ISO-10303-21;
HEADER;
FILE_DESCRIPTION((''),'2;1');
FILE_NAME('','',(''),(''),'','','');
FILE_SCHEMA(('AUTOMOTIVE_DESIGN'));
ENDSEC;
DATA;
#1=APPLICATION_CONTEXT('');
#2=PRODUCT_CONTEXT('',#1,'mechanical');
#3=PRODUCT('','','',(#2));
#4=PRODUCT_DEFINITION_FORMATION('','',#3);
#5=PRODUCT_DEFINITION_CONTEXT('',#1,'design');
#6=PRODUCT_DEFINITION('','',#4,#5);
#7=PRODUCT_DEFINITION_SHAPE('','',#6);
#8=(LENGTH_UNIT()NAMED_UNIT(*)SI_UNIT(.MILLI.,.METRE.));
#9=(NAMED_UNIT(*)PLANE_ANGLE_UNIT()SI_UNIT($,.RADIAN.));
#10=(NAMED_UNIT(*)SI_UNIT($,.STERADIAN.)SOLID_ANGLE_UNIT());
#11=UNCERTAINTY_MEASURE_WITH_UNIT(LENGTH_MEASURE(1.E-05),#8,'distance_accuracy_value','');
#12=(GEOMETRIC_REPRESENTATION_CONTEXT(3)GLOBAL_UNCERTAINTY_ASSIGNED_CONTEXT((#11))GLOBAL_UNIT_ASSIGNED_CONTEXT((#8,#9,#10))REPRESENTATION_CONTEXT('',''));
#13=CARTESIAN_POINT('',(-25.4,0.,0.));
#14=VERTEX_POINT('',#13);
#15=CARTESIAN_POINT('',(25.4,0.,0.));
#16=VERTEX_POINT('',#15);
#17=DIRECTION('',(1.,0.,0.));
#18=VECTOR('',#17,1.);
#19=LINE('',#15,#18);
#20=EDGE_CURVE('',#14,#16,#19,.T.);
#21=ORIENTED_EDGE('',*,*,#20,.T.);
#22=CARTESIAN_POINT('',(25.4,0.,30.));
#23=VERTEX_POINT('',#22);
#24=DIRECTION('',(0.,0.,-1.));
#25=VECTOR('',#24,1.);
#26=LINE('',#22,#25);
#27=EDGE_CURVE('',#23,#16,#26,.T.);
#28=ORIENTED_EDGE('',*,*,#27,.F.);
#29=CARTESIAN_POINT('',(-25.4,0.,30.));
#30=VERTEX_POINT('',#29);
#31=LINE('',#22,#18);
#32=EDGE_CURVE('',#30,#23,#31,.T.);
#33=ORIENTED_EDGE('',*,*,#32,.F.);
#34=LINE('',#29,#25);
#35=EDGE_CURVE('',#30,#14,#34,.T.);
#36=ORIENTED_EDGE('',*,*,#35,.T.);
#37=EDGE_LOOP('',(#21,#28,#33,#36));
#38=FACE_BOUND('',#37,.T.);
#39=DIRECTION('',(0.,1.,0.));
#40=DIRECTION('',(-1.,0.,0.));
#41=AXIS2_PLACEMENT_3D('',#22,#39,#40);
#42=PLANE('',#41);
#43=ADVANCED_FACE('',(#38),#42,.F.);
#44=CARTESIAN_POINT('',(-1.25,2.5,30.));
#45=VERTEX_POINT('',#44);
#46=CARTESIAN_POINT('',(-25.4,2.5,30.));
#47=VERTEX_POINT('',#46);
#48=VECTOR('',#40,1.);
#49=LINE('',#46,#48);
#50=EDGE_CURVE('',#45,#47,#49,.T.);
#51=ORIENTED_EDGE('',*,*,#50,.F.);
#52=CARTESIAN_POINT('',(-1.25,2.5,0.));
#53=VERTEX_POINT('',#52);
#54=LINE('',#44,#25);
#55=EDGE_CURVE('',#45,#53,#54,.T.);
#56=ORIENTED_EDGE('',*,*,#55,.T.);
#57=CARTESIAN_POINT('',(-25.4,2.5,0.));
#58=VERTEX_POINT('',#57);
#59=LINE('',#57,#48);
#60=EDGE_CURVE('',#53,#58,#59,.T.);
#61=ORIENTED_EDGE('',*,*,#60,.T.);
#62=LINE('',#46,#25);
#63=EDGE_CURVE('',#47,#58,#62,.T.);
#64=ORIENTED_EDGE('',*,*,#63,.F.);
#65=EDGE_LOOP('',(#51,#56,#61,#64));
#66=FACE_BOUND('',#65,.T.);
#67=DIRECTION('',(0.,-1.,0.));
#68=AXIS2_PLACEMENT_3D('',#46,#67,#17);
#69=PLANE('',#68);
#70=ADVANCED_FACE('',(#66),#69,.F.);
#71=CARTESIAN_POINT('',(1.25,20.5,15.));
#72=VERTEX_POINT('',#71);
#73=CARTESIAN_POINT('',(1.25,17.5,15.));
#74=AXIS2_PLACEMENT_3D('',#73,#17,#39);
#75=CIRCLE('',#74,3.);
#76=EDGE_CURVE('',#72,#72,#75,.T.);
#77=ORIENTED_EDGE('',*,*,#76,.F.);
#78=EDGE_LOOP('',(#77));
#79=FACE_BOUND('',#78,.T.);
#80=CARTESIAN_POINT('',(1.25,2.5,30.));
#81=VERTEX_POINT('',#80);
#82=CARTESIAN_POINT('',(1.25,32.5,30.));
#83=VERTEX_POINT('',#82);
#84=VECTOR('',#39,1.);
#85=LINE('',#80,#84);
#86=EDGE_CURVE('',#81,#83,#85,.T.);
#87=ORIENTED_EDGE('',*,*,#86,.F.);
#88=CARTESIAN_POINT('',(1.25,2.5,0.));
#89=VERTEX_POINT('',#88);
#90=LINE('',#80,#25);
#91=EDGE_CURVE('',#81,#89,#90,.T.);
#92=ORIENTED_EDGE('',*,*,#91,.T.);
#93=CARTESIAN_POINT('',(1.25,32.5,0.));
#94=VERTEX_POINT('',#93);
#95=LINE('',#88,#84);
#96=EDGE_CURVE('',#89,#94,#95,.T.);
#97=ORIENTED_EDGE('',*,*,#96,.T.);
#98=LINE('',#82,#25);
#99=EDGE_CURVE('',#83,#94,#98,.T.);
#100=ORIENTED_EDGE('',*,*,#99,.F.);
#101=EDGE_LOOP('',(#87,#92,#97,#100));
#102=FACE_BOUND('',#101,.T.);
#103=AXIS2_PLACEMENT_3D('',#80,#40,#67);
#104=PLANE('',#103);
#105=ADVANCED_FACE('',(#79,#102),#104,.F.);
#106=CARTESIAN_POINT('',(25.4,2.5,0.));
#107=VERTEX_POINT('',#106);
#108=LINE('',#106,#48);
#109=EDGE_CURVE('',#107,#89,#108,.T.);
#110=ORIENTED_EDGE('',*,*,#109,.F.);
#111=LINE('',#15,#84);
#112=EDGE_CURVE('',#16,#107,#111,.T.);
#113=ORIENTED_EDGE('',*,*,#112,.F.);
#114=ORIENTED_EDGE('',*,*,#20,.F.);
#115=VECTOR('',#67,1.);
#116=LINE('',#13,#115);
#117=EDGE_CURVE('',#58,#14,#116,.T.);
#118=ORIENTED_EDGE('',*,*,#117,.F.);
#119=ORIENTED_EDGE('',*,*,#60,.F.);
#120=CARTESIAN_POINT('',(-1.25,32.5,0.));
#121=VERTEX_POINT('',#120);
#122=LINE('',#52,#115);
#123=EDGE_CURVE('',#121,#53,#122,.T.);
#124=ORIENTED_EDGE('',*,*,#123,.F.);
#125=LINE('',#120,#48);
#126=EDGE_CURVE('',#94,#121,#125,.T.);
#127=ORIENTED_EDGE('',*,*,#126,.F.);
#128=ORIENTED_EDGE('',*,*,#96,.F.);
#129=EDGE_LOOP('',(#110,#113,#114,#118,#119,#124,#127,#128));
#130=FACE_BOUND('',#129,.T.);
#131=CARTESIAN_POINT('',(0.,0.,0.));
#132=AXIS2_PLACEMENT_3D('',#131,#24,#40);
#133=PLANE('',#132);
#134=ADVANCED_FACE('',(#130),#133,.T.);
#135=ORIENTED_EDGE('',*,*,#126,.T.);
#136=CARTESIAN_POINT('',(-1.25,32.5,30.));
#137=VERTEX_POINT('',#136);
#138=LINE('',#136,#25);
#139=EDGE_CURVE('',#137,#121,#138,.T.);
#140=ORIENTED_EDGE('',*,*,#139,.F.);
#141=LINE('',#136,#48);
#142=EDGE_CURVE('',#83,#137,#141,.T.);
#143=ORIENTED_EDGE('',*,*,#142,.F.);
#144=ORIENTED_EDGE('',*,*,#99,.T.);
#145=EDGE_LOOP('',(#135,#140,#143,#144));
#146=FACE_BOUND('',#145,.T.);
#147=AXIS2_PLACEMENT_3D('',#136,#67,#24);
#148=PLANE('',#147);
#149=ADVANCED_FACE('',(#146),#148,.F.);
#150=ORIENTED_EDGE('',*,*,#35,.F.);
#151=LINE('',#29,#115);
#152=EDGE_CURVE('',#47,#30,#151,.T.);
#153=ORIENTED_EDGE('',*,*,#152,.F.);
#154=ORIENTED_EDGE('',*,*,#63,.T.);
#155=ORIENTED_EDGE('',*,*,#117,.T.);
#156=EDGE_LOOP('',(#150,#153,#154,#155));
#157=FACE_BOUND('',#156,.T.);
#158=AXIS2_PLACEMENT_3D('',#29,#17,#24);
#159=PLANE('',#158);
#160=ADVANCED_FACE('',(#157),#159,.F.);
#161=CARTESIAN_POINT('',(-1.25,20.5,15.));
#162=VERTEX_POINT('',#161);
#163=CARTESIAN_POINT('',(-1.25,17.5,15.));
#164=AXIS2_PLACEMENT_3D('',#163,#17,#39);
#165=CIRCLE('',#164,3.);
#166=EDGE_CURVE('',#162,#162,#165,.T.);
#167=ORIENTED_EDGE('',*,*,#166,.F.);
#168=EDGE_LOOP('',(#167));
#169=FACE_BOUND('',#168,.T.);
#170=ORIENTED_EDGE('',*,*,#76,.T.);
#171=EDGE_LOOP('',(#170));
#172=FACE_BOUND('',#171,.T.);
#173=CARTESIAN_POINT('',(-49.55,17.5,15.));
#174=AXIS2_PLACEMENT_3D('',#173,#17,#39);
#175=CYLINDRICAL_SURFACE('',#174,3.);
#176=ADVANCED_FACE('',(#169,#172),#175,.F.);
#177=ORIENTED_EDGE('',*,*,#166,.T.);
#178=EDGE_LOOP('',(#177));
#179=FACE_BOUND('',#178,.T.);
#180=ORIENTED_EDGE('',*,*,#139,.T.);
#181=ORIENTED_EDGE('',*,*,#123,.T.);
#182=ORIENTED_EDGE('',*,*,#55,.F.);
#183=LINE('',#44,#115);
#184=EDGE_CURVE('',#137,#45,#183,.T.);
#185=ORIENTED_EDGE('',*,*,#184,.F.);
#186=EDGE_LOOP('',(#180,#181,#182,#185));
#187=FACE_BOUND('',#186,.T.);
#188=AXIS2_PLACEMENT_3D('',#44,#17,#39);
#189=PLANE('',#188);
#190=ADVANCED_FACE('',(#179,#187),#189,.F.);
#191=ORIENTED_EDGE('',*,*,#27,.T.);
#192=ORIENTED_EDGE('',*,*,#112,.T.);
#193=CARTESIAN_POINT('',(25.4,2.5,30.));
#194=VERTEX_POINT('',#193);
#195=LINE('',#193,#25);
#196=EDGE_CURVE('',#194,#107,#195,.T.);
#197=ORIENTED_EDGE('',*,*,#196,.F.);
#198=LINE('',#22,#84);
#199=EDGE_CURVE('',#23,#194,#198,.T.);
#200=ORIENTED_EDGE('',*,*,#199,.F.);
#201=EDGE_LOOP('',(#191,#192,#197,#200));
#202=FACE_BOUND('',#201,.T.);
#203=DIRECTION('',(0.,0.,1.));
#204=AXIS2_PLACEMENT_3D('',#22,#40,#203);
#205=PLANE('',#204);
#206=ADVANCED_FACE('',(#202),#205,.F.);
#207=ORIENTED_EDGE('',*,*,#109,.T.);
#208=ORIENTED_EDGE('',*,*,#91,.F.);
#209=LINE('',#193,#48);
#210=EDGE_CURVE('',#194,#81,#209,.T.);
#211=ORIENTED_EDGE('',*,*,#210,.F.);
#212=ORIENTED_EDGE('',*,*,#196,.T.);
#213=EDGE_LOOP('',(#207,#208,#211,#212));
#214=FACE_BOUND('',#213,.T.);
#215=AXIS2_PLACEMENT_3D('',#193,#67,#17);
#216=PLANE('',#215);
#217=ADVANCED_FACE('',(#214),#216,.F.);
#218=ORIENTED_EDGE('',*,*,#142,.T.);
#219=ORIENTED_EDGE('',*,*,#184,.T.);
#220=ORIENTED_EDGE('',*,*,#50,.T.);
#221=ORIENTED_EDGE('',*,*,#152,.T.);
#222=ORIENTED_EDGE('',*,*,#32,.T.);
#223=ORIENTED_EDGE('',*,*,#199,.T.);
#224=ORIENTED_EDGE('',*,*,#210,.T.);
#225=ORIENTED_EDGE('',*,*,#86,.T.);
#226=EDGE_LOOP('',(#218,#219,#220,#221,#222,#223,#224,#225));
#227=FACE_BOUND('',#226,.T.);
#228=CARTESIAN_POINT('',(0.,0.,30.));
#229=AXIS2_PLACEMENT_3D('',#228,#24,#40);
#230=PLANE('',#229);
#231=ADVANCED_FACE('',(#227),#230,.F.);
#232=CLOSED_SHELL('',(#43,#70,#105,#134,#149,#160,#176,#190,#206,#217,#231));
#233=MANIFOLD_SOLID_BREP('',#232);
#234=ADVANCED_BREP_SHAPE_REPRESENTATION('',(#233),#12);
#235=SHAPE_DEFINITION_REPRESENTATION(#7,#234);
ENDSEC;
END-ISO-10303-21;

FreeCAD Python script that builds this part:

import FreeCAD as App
import Part
import Sketcher

V = App.Vector
Q = App.Units.Quantity


def add_polygon(sketch, points):
    """Adds a closed chain of lines whose ends are joined by coincident constraints."""
    first, n = sketch.GeometryCount, len(points)
    for a, b in zip(points, points[1:] + points[:1]):
        sketch.addGeometry(Part.LineSegment(App.Vector(*a, 0), App.Vector(*b, 0)), False)
    for i in range(n):
        sketch.addConstraint(Sketcher.Constraint("Coincident", first + i, 2, first + (i + 1) % n, 1))

doc = App.newDocument("Part")
body = doc.addObject("PartDesign::Body", "Body")

# Sketch on XY plane
sketch1 = doc.addObject("Sketcher::SketchObject", "Sketch")
body.addObject(sketch1)
sketch1.AttachmentSupport = (doc.XY_Plane, [""])
sketch1.MapMode = "FlatFace"
add_polygon(sketch1, [(-25.4, 0), (25.4, 0), (25.4, 2.5), (1.2, 2.5), (1.2, 32.5), (-1.2, 32.5), (-1.2, 2.5), (-25.4, 2.5)])  # lines 0-7
sketch1.addConstraint([
    Sketcher.Constraint("Horizontal", 0),
    Sketcher.Constraint("Vertical", 1),
    Sketcher.Constraint("Horizontal", 2),
    Sketcher.Constraint("Vertical", 3),
    Sketcher.Constraint("Horizontal", 4),
    Sketcher.Constraint("Vertical", 5),
    Sketcher.Constraint("Horizontal", 6),
    Sketcher.Constraint("Vertical", 7),
    Sketcher.Constraint("Symmetric", 0, 2, 7, 2, -1, 1),
    Sketcher.Constraint("Symmetric", 2, 2, 5, 2, -2),
    Sketcher.Constraint("Equal", 4, 1),
    Sketcher.Constraint("DistanceY", 3, 1, 3, 2, Q("30 mm")),
    Sketcher.Constraint("DistanceX", 0, 1, 0, 2, Q("50.8 mm")),
    Sketcher.Constraint("DistanceX", 4, 2, 4, 1, Q("2.5 mm")),
])
pad1 = doc.addObject("PartDesign::Pad", "Pad")
body.addObject(pad1)
pad1.Profile = sketch1
pad1.Length = 30

# Sketch on YZ plane
sketch2 = doc.addObject("Sketcher::SketchObject", "Sketch001")
body.addObject(sketch2)
sketch2.AttachmentSupport = (doc.YZ_Plane, [""])
sketch2.MapMode = "FlatFace"
sketch2.AttachmentOffset = App.Placement(V(0, 0, 1.25), App.Rotation())
sketch2.addGeometry(Part.Circle(V(17.5, 15, 0), V(0, 0, 1), 3), False)
sketch2.addConstraint([
    Sketcher.Constraint("Diameter", 0, Q("6 mm")),
    Sketcher.Constraint("DistanceY", -1, 1, 0, 3, Q("15 mm")),
    Sketcher.Constraint("DistanceX", -1, 1, 0, 3, Q("17.5 mm")),
])
pocket1 = doc.addObject("PartDesign::Pocket", "Pocket")
body.addObject(pocket1)
pocket1.Profile = sketch2
pocket1.Length = 50.8

doc.recompute()
